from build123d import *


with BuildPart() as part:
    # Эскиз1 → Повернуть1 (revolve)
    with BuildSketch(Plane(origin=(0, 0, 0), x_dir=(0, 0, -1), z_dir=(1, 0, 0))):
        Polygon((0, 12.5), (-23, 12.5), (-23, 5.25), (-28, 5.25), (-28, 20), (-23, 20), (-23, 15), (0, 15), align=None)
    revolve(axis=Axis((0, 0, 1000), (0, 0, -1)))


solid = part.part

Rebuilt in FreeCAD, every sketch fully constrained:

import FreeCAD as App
import Part
import Sketcher
Q = App.Units.Quantity

doc = App.newDocument("Part")
params = doc.addObject("Spreadsheet::Sheet", "Params")
for row, (alias, value) in enumerate([
    ("sketch1_width", "5 mm"),
    ("sketch1_height", "23 mm"),
    ("sketch1_width2", "2.5 mm"),
    ("sketch1_width3", "14.75 mm"),
    ("revolution_angle", "360 deg"),
], start=1):
    params.set(f"A{row}", alias)
    params.set(f"B{row}", "=" + value)
    params.setAlias(f"B{row}", alias)

body = doc.addObject("PartDesign::Body", "Body")

# Sketch on YZ plane
sketch1 = doc.addObject("Sketcher::SketchObject", "Sketch")
body.addObject(sketch1)
sketch1.AttachmentSupport = (doc.YZ_Plane, [""])
sketch1.MapMode = "FlatFace"
sketch1.addGeometry([
    Part.LineSegment(App.Vector(12.5, 23, 0), App.Vector(12.5, 0, 0)),  # 0
    Part.LineSegment(App.Vector(12.5, 0, 0), App.Vector(15, 0, 0)),  # 1
    Part.LineSegment(App.Vector(15, 0, 0), App.Vector(15, 23, 0)),  # 2
    Part.LineSegment(App.Vector(15, 23, 0), App.Vector(20, 23, 0)),  # 3
    Part.LineSegment(App.Vector(20, 23, 0), App.Vector(20, 28, 0)),  # 4
    Part.LineSegment(App.Vector(20, 28, 0), App.Vector(5.2, 28, 0)),  # 5
    Part.LineSegment(App.Vector(5.2, 28, 0), App.Vector(5.2, 23, 0)),  # 6
    Part.LineSegment(App.Vector(5.2, 23, 0), App.Vector(12.5, 23, 0)),  # 7
], False)
sketch1.addConstraint([
    Sketcher.Constraint("Coincident", 0, 2, 1, 1),
    Sketcher.Constraint("Coincident", 1, 2, 2, 1),
    Sketcher.Constraint("Coincident", 2, 2, 3, 1),
    Sketcher.Constraint("Coincident", 3, 2, 4, 1),
    Sketcher.Constraint("Coincident", 4, 2, 5, 1),
    Sketcher.Constraint("Coincident", 5, 2, 6, 1),
    Sketcher.Constraint("Coincident", 6, 2, 7, 1),
    Sketcher.Constraint("Coincident", 7, 2, 0, 1),
    Sketcher.Constraint("Vertical", 0),
    Sketcher.Constraint("Horizontal", 1),
    Sketcher.Constraint("Vertical", 2),
    Sketcher.Constraint("Horizontal", 3),
    Sketcher.Constraint("Vertical", 4),
    Sketcher.Constraint("Horizontal", 5),
    Sketcher.Constraint("Vertical", 6),
    Sketcher.Constraint("Horizontal", 7),
    Sketcher.Constraint("PointOnObject", 0, 2, -1),
    Sketcher.Constraint("Horizontal", 3, 2, 6, 2),
    Sketcher.Constraint("Equal", 3, 4),
    Sketcher.Constraint("DistanceX", 3, 1, 3, 2, Q("5 mm")),
    Sketcher.Constraint("DistanceY", 0, 2, 0, 1, Q("23 mm")),
    Sketcher.Constraint("DistanceX", 1, 1, 1, 2, Q("2.5 mm")),
    Sketcher.Constraint("DistanceX", -1, 1, 1, 2, Q("15 mm")),
    Sketcher.Constraint("DistanceX", 5, 2, 5, 1, Q("14.75 mm")),
])
sketch1.setExpression("Constraints[19]", "Params.sketch1_width")
sketch1.setExpression("Constraints[20]", "Params.sketch1_height")
sketch1.setExpression("Constraints[21]", "Params.sketch1_width2")
sketch1.setExpression("Constraints[23]", "Params.sketch1_width3")
revolution = doc.addObject("PartDesign::Revolution", "Revolution")
body.addObject(revolution)
revolution.Profile = sketch1
revolution.ReferenceAxis = (sketch1, ["V_Axis"])
revolution.setExpression("Angle", "Params.revolution_angle")

doc.recompute()
